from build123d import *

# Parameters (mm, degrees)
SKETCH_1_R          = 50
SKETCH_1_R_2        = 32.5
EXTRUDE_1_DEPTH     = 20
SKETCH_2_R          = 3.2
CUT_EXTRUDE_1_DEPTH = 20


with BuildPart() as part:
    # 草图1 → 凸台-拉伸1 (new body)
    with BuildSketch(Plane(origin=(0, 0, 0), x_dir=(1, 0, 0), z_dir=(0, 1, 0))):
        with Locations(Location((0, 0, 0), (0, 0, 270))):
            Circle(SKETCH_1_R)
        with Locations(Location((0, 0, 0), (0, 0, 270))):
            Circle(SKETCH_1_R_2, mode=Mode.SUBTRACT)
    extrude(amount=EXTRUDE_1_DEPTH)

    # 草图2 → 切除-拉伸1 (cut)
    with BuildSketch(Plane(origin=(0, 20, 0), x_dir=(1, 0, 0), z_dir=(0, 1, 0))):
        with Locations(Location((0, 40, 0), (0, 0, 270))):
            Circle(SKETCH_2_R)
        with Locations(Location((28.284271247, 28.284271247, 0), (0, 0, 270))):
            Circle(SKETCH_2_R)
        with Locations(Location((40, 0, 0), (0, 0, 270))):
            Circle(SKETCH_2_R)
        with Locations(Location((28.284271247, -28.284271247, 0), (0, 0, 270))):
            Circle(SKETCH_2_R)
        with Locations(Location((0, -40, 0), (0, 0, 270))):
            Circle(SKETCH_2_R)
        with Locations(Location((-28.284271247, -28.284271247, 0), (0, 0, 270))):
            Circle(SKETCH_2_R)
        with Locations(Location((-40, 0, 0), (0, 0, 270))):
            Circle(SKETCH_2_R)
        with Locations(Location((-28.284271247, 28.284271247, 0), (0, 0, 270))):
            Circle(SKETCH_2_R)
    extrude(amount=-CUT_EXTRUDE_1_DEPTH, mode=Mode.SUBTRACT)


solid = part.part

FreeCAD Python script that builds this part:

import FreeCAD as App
import Part
import Sketcher
from FreeCAD import Vector
Q = App.Units.Quantity

doc = App.newDocument("Part")
body = doc.addObject("PartDesign::Body", "Body")

# Sketch on XZ plane
sketch1 = doc.addObject("Sketcher::SketchObject", "Sketch")
body.addObject(sketch1)
sketch1.AttachmentSupport = (doc.XZ_Plane, [""])
sketch1.MapMode = "FlatFace"
sketch1.addGeometry([
    Part.Circle(Vector(0, 0, 0), Vector(0, 0, 1), 50),
    Part.Circle(Vector(0, 0, 0), Vector(0, 0, 1), 32.5),
], False)
sketch1.addConstraint([
    Sketcher.Constraint("Coincident", 0, 3, -1, 1),
    Sketcher.Constraint("Coincident", 1, 3, -1, 1),
    Sketcher.Constraint("Diameter", 0, Q("100 mm")),
    Sketcher.Constraint("Diameter", 1, Q("65 mm")),
])
pad1 = doc.addObject("PartDesign::Pad", "Pad")
body.addObject(pad1)
pad1.Profile = sketch1
pad1.Length = 20
pad1.Reversed = True

# Sketch on XZ plane
sketch2 = doc.addObject("Sketcher::SketchObject", "Sketch001")
body.addObject(sketch2)
sketch2.AttachmentSupport = (doc.XZ_Plane, [""])
sketch2.MapMode = "FlatFace"
sketch2.AttachmentOffset = App.Placement(Vector(0, 0, -20), App.Rotation())
sketch2.addGeometry([
    Part.Circle(Vector(0, -40, 0), Vector(0, 0, 1), 3.2),  # 0
    Part.Circle(Vector(28.284271, -28.284271, 0), Vector(0, 0, 1), 3.2),  # 1
    Part.Circle(Vector(40, 0, 0), Vector(0, 0, 1), 3.2),  # 2
    Part.Circle(Vector(28.284271, 28.284271, 0), Vector(0, 0, 1), 3.2),  # 3
    Part.Circle(Vector(0, 40, 0), Vector(0, 0, 1), 3.2),  # 4
    Part.Circle(Vector(-28.284271, 28.284271, 0), Vector(0, 0, 1), 3.2),  # 5
    Part.Circle(Vector(-40, 0, 0), Vector(0, 0, 1), 3.2),  # 6
    Part.Circle(Vector(-28.284271, -28.284271, 0), Vector(0, 0, 1), 3.2),  # 7
], False)
sketch2.addConstraint([
    Sketcher.Constraint("Equal", 0, 1),
    Sketcher.Constraint("Equal", 1, 2),
    Sketcher.Constraint("Equal", 2, 3),
    Sketcher.Constraint("Equal", 3, 4),
    Sketcher.Constraint("Equal", 4, 5),
    Sketcher.Constraint("Equal", 5, 6),
    Sketcher.Constraint("Equal", 6, 7),
    Sketcher.Constraint("Symmetric", 0, 3, 4, 3, -1, 1),
    Sketcher.Constraint("Symmetric", 1, 3, 5, 3, -1, 1),
    Sketcher.Constraint("Symmetric", 2, 3, 6, 3, -1, 1),
    Sketcher.Constraint("Symmetric", 3, 3, 7, 3, -1, 1),
    Sketcher.Constraint("Symmetric", 3, 3, 5, 3, -2),
    Sketcher.Constraint("PointOnObject", 0, 3, -2),
    Sketcher.Constraint("PointOnObject", 2, 3, -1),
    Sketcher.Constraint("Diameter", 0, Q("6.4 mm")),
    Sketcher.Constraint("DistanceY", 0, 3, -1, 1, Q("40 mm")),
    Sketcher.Constraint("DistanceX", -1, 1, 2, 3, Q("40 mm")),
    Sketcher.Constraint("DistanceX", -1, 1, 1, 3, Q("28.284271 mm")),
    Sketcher.Constraint("DistanceY", 1, 3, -1, 1, Q("28.284271 mm")),
])
pocket1 = doc.addObject("PartDesign::Pocket", "Pocket")
body.addObject(pocket1)
pocket1.Profile = sketch2
pocket1.Length = 20
pocket1.Reversed = True

doc.recompute()
